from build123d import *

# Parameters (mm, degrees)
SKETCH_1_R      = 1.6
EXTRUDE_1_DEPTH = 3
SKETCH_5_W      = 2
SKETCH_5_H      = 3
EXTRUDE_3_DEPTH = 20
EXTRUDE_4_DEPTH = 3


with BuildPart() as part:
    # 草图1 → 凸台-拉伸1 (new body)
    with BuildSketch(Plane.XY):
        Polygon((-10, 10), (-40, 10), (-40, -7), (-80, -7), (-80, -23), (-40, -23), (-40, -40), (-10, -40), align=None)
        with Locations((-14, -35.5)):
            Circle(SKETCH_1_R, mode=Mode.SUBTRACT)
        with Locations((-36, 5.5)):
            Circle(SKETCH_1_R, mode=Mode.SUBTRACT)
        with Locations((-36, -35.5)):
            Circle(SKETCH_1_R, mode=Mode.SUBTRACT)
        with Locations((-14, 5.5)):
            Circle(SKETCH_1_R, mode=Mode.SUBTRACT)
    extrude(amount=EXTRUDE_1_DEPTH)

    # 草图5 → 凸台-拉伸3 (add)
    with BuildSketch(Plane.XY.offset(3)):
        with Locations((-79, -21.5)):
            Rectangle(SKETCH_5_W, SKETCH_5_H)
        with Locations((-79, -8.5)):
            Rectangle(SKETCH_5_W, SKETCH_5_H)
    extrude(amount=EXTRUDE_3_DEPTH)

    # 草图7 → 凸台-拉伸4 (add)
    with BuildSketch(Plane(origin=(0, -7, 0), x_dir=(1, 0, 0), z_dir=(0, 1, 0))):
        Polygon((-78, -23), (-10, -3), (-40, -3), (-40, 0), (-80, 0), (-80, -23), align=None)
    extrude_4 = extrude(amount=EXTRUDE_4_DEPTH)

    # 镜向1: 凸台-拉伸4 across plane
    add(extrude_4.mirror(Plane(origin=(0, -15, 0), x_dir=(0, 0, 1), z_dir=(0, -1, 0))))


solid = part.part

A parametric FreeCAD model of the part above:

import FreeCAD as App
import Part
import Sketcher
from FreeCAD import Vector


def add_polygon(sketch, points):
    """Adds a closed chain of lines whose ends are joined by coincident constraints."""
    first, n = sketch.GeometryCount, len(points)
    for a, b in zip(points, points[1:] + points[:1]):
        sketch.addGeometry(Part.LineSegment(App.Vector(*a, 0), App.Vector(*b, 0)), False)
    for i in range(n):
        sketch.addConstraint(Sketcher.Constraint("Coincident", first + i, 2, first + (i + 1) % n, 1))

doc = App.newDocument("Part")
body = doc.addObject("PartDesign::Body", "Body")

sketch1 = body.newObject("Sketcher::SketchObject", "Sketch")
sketch1.AttachmentSupport = (doc.getObject("XY_Plane"), [""])
sketch1.MapMode = "FlatFace"
add_polygon(sketch1, [(-10, 10), (-40, 10), (-40, -7), (-80, -7), (-80, -23), (-40, -23), (-40, -40), (-10, -40)])
sketch1.addGeometry(Part.Circle(Vector(-36, -35.5, 0), Vector(0, 0, 1), 1.6), False)
sketch1.addGeometry(Part.Circle(Vector(-14, -35.5, 0), Vector(0, 0, 1), 1.6), False)
sketch1.addGeometry(Part.Circle(Vector(-36, 5.5, 0), Vector(0, 0, 1), 1.6), False)
sketch1.addGeometry(Part.Circle(Vector(-14, 5.5, 0), Vector(0, 0, 1), 1.6), False)
sketch1.addConstraint([
    Sketcher.Constraint("Horizontal", 0),
    Sketcher.Constraint("Vertical", 1),
    Sketcher.Constraint("Horizontal", 2),
    Sketcher.Constraint("Vertical", 3),
    Sketcher.Constraint("Horizontal", 4),
    Sketcher.Constraint("Vertical", 5),
    Sketcher.Constraint("Horizontal", 6),
    Sketcher.Constraint("Vertical", 7),
    Sketcher.Constraint("Equal", 8, 9),
    Sketcher.Constraint("Equal", 9, 10),
    Sketcher.Constraint("Equal", 10, 11),
    Sketcher.Constraint("Horizontal", 8, 3, 9, 3),
    Sketcher.Constraint("Horizontal", 10, 3, 11, 3),
    Sketcher.Constraint("Vertical", 8, 3, 10, 3),
    Sketcher.Constraint("Vertical", 9, 3, 11, 3),
    Sketcher.Constraint("Vertical", 1, 2, 4, 2),
    Sketcher.Constraint("Equal", 1, 5),
    Sketcher.Constraint("Diameter", 8, 3.2),
    Sketcher.Constraint("DistanceX", 0, 2, 0, 1, 30.0),
    Sketcher.Constraint("DistanceX", 2, 2, 2, 1, 40.0),
    Sketcher.Constraint("DistanceY", 1, 2, 1, 1, 17.0),
    Sketcher.Constraint("DistanceY", 3, 2, 3, 1, 16.0),
    Sketcher.Constraint("DistanceX", 8, 3, -1, 1, 36.0),
    Sketcher.Constraint("DistanceX", 9, 3, -1, 1, 14.0),
    Sketcher.Constraint("DistanceX", 0, 2, -1, 1, 40.0),
    Sketcher.Constraint("DistanceY", -1, 1, 0, 2, 10.0),
    Sketcher.Constraint("DistanceY", 8, 3, 10, 3, 41.0),
    Sketcher.Constraint("DistanceY", 8, 3, -1, 1, 35.5),
])
pad1 = body.newObject("PartDesign::Pad", "Pad")
pad1.Profile = sketch1
pad1.Length = 3

sketch2 = body.newObject("Sketcher::SketchObject", "Sketch001")
sketch2.AttachmentSupport = (doc.getObject("XY_Plane"), [""])
sketch2.MapMode = "FlatFace"
sketch2.AttachmentOffset = App.Placement(Vector(0, 0, 3), App.Rotation())
add_polygon(sketch2, [(-80, -20), (-80, -23), (-78, -23), (-78, -20)])
add_polygon(sketch2, [(-80, -7), (-80, -10), (-78, -10), (-78, -7)])
sketch2.addConstraint([
    Sketcher.Constraint("Vertical", 0),
    Sketcher.Constraint("Horizontal", 1),
    Sketcher.Constraint("Vertical", 2),
    Sketcher.Constraint("Horizontal", 3),
    Sketcher.Constraint("Vertical", 4),
    Sketcher.Constraint("Horizontal", 5),
    Sketcher.Constraint("Vertical", 6),
    Sketcher.Constraint("Horizontal", 7),
    Sketcher.Constraint("Vertical", 3, 2, 4, 2),
    Sketcher.Constraint("Vertical", 2, 2, 5, 2),
    Sketcher.Constraint("Equal", 2, 4),
    Sketcher.Constraint("DistanceX", 1, 1, 1, 2, 2.0),
    Sketcher.Constraint("DistanceY", 0, 2, 0, 1, 3.0),
    Sketcher.Constraint("DistanceX", 0, 2, -1, 1, 80.0),
    Sketcher.Constraint("DistanceY", 0, 2, -1, 1, 23.0),
    Sketcher.Constraint("DistanceY", 4, 2, -1, 1, 10.0),
])
pad2 = body.newObject("PartDesign::Pad", "Pad001")
pad2.Profile = sketch2
pad2.Length = 20

sketch3 = body.newObject("Sketcher::SketchObject", "Sketch002")
sketch3.AttachmentSupport = (doc.getObject("XZ_Plane"), [""])
sketch3.MapMode = "FlatFace"
sketch3.AttachmentOffset = App.Placement(Vector(0, 0, 7), App.Rotation())
add_polygon(sketch3, [(-78, 23), (-10, 3), (-40, 3), (-40, 0), (-80, 0), (-80, 23)])
sketch3.addConstraint([
    Sketcher.Constraint("Horizontal", 1),
    Sketcher.Constraint("Vertical", 2),
    Sketcher.Constraint("Horizontal", 3),
    Sketcher.Constraint("Vertical", 4),
    Sketcher.Constraint("Horizontal", 5),
    Sketcher.Constraint("PointOnObject", 2, 2, -1),
    Sketcher.Constraint("DistanceX", 1, 2, 1, 1, 30.0),
    Sketcher.Constraint("DistanceX", 3, 2, 3, 1, 40.0),
    Sketcher.Constraint("DistanceX", 5, 1, 5, 2, 2.0),
    Sketcher.Constraint("DistanceY", 2, 2, 2, 1, 3.0),
    Sketcher.Constraint("DistanceY", 4, 1, 4, 2, 23.0),
    Sketcher.Constraint("DistanceX", 0, 2, -1, 1, 10.0),
])
pad3 = body.newObject("PartDesign::Pad", "Pad002")
pad3.Profile = sketch3
pad3.Length = 3
pad3.Reversed = True
doc.recompute()

datumplane = body.newObject("PartDesign::Plane", "DatumPlane")
datumplane.AttachmentSupport = (doc.getObject("XZ_Plane"), [""])
datumplane.MapMode = "FlatFace"
datumplane.AttachmentOffset = App.Placement(Vector(0, 0, 15), App.Rotation())
mirrored = body.newObject("PartDesign::Mirrored", "Mirrored")
mirrored.Originals = [pad3]
mirrored.MirrorPlane = (datumplane, [""])
body.Tip = mirrored

doc.recompute()
